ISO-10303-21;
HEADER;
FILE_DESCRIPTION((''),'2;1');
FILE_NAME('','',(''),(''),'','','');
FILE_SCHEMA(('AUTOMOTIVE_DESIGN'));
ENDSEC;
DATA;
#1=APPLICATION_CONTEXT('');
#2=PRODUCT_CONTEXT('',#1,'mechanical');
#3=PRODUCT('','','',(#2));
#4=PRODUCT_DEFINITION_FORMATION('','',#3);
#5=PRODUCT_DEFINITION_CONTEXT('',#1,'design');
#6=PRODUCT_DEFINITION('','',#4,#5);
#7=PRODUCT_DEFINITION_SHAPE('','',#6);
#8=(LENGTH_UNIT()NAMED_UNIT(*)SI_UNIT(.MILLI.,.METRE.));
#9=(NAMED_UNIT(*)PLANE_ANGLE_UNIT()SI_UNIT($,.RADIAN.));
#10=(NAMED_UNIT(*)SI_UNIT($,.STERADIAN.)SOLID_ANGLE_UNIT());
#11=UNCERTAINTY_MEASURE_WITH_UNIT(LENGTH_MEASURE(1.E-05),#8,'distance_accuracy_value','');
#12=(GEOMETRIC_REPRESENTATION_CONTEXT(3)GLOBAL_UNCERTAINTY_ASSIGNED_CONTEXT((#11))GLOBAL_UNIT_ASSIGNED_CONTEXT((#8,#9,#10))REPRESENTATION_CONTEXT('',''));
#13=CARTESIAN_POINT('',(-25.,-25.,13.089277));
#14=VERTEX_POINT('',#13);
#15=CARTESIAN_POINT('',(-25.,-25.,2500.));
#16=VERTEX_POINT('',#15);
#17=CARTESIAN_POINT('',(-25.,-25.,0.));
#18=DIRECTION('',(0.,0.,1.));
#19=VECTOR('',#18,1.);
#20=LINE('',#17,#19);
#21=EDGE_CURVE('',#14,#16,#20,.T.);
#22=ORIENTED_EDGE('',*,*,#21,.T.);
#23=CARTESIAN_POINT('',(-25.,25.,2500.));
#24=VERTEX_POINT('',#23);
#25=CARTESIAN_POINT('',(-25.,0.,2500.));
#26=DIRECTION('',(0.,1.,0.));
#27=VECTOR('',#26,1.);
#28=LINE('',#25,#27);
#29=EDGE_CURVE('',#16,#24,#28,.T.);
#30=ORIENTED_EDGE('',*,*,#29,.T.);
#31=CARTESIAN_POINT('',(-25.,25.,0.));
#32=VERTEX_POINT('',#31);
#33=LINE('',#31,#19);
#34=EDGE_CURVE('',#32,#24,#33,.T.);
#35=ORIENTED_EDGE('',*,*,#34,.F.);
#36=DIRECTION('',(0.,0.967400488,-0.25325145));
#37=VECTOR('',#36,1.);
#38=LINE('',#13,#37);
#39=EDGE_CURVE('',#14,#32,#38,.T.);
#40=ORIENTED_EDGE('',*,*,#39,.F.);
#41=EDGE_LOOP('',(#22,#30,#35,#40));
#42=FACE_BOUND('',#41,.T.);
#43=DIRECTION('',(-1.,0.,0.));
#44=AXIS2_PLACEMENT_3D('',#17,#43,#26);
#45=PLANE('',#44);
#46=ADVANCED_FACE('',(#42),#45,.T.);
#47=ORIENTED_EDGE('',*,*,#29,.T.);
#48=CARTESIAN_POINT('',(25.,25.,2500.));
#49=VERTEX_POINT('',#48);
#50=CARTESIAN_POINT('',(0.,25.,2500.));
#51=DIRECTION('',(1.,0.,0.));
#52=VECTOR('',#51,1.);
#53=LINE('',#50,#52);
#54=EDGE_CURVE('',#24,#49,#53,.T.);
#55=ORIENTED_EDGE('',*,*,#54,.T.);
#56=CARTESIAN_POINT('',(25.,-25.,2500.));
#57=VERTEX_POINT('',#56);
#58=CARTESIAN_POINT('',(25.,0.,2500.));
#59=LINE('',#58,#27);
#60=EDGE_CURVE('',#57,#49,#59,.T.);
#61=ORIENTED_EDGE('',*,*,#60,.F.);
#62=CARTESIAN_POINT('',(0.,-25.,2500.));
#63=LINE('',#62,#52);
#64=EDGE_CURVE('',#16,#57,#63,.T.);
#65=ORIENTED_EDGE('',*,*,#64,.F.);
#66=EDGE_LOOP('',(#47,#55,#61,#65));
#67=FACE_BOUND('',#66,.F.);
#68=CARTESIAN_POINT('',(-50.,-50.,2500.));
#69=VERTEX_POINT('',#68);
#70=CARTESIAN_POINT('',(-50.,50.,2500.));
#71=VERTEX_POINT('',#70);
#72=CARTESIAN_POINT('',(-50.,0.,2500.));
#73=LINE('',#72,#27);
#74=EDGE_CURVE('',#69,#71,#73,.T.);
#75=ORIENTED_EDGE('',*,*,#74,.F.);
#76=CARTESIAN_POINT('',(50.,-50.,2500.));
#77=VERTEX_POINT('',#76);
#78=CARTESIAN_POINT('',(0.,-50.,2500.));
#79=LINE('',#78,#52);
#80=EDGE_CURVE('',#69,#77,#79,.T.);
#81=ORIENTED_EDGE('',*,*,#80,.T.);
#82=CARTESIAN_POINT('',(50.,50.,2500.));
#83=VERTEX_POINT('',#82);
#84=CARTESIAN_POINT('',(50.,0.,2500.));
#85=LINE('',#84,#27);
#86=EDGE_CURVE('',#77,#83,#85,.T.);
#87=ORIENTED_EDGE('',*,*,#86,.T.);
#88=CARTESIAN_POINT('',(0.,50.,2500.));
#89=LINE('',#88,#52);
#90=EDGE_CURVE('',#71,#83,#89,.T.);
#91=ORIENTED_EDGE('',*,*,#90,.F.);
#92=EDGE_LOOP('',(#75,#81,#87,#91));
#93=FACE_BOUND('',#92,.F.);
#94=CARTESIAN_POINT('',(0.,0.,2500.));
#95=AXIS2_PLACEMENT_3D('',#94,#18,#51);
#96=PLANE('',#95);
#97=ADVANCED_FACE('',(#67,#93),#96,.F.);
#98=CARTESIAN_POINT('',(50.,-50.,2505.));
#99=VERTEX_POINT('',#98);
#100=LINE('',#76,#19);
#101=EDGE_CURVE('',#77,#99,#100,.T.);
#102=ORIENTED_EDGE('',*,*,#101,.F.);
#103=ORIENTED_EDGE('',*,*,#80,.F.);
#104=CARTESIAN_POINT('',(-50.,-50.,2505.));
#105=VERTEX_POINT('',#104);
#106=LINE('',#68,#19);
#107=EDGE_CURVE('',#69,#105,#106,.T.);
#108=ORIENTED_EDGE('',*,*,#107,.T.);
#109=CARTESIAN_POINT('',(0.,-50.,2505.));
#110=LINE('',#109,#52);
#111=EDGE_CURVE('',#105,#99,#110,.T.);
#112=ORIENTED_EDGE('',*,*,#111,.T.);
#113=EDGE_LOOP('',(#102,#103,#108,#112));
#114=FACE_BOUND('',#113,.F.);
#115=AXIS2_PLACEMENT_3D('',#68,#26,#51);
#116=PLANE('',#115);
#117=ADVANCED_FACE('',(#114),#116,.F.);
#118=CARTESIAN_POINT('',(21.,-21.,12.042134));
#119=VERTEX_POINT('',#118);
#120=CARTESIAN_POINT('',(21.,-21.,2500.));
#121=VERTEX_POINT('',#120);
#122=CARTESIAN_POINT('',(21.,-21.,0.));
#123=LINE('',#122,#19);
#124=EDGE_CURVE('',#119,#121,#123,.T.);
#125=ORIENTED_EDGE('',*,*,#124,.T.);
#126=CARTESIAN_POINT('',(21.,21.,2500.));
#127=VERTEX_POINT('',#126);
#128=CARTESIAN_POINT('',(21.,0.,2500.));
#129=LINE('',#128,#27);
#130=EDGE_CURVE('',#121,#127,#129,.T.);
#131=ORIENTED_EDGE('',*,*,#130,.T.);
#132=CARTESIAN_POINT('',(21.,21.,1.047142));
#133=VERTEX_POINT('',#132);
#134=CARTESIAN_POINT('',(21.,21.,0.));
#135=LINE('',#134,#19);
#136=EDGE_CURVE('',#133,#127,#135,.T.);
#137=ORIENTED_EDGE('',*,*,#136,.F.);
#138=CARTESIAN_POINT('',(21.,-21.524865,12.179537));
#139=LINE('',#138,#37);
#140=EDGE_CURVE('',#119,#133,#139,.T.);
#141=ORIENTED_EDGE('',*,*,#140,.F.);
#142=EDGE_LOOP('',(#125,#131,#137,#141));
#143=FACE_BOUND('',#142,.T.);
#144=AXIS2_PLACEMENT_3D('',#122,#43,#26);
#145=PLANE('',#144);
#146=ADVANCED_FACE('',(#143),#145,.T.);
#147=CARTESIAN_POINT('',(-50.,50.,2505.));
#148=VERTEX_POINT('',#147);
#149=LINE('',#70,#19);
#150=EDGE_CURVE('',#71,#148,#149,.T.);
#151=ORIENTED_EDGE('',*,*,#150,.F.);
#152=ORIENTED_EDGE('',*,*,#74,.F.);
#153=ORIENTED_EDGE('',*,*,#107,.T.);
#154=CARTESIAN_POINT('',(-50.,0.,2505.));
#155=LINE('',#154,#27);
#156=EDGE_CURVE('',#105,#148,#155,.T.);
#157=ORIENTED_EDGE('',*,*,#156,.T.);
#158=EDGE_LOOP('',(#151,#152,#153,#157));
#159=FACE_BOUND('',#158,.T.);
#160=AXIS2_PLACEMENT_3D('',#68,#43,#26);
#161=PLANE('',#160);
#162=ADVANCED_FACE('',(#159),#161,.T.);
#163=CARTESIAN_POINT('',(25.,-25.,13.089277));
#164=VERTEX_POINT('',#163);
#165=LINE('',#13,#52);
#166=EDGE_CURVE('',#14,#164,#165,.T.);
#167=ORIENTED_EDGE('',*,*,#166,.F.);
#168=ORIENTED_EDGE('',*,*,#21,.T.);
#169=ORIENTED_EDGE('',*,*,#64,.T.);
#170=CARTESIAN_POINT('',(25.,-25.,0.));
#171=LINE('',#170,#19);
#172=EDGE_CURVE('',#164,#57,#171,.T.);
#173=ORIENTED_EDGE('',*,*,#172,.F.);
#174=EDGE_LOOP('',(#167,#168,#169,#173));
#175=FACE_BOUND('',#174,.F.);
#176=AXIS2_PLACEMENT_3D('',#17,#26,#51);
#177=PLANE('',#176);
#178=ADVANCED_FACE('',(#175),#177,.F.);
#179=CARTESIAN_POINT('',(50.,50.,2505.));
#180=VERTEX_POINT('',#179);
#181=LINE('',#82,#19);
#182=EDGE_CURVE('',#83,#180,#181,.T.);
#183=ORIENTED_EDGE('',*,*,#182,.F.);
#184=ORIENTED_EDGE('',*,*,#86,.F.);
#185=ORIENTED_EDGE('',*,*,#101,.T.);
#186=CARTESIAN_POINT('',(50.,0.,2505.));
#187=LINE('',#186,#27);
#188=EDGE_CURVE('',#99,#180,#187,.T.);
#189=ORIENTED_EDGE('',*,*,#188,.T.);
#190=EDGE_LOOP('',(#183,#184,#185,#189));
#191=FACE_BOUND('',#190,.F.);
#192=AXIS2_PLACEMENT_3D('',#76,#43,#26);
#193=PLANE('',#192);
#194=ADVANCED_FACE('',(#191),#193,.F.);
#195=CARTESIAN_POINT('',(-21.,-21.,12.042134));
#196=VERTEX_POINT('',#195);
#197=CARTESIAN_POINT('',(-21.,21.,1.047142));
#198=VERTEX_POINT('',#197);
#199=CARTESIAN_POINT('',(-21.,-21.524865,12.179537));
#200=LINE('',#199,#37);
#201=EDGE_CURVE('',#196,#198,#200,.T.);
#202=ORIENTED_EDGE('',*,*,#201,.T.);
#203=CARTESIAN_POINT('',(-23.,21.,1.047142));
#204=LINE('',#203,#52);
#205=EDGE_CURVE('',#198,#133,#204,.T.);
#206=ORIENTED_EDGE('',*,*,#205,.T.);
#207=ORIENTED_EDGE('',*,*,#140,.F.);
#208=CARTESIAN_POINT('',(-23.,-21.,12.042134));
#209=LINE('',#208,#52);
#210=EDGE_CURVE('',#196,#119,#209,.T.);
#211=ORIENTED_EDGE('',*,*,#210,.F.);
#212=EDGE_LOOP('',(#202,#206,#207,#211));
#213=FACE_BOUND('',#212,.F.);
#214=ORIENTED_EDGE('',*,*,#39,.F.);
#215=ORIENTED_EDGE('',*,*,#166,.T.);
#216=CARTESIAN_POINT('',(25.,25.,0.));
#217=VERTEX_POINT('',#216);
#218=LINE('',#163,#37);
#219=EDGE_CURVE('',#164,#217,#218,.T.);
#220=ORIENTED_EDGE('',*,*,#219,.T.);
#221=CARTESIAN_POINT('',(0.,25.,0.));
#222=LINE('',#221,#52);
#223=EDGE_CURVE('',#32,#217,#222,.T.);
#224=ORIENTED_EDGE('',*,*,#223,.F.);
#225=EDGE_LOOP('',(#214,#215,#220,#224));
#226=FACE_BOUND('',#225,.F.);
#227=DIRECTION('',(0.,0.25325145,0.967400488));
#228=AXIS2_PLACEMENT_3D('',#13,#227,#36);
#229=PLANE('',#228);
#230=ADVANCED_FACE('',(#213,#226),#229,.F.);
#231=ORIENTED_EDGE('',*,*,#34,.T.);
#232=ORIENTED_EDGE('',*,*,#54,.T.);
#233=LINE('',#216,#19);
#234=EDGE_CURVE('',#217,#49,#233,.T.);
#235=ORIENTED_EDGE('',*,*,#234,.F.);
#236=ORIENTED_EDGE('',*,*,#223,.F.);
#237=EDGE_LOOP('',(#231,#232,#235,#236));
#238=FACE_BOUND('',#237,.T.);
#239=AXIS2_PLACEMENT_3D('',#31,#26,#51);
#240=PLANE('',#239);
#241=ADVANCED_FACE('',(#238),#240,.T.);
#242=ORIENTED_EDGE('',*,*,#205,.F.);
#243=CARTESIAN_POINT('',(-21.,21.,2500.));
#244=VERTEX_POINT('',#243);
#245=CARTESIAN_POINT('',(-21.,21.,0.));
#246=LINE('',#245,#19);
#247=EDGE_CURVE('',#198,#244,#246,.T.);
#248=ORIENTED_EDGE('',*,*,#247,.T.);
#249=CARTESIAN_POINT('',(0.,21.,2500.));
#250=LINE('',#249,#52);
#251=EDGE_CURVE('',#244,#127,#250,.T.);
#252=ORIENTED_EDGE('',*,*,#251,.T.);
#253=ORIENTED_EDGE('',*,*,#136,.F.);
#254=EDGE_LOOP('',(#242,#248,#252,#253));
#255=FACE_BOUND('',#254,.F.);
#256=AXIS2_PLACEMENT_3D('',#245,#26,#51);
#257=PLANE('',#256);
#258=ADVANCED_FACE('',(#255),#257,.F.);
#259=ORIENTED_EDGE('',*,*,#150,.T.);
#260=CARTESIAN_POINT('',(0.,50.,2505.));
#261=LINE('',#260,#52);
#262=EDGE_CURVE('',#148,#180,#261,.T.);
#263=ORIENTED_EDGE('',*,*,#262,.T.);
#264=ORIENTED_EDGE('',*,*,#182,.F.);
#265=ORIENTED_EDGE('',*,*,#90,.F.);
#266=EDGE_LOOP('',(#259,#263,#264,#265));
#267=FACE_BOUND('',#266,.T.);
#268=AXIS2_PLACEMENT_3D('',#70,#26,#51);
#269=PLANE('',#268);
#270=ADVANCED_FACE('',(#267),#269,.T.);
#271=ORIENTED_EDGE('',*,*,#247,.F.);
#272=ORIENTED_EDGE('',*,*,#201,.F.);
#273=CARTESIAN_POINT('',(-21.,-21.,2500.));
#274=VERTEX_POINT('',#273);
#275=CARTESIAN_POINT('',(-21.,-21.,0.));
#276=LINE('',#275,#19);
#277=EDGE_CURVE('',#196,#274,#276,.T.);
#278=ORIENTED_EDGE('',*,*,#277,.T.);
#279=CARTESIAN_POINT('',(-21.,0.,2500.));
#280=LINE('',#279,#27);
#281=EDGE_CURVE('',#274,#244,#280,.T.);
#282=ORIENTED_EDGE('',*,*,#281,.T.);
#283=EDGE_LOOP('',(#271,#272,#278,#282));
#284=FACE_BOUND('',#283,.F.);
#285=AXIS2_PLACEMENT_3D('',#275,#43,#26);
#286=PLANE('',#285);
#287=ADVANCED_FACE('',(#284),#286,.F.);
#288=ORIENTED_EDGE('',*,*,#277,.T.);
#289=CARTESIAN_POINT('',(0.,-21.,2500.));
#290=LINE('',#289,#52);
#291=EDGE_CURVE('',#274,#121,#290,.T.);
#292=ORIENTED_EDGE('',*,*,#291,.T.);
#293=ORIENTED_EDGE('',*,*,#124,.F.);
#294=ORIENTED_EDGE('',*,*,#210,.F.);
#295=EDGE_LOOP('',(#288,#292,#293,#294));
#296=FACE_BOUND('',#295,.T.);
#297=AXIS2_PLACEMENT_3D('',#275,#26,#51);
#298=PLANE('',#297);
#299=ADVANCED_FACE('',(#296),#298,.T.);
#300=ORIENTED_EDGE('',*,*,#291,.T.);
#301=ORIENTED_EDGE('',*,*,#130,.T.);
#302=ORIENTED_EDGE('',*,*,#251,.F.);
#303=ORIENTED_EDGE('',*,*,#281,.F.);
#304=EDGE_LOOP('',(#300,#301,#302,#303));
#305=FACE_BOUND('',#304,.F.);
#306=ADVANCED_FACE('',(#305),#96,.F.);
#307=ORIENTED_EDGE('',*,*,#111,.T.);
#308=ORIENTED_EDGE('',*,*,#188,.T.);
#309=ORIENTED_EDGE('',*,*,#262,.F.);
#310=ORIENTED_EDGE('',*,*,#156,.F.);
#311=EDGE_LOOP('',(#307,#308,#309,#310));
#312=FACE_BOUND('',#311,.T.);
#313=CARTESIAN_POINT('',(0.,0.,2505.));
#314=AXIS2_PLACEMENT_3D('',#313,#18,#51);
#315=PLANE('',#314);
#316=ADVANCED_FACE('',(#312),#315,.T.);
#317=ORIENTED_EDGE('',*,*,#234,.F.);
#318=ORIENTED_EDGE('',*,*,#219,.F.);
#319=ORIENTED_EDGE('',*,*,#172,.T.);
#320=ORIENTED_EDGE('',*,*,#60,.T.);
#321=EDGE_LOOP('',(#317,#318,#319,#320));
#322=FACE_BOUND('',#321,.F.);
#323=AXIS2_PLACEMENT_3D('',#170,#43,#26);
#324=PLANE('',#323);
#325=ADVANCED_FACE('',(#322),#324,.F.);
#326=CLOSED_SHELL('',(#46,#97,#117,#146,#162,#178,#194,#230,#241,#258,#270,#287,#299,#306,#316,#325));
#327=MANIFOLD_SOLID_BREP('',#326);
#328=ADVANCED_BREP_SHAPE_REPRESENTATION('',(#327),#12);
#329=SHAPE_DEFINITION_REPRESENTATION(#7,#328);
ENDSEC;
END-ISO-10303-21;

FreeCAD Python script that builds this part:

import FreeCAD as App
import Part
import Sketcher
from FreeCAD import Vector
Q = App.Units.Quantity

doc = App.newDocument("Part")
params = doc.addObject("Spreadsheet::Sheet", "Params")
for row, (alias, value) in enumerate([
    ("sketch1_width", "50 mm"),
    ("sketch1_width2", "42 mm"),
    ("pad1_length", "2500 mm"),
    ("sketch2_width", "100 mm"),
    ("pad2_length", "5 mm"),
    ("sketch3_width", "50 mm"),
    ("pocket1_length", "50 mm"),
], start=1):
    params.set(f"A{row}", alias)
    params.set(f"B{row}", "=" + value)
    params.setAlias(f"B{row}", alias)

body = doc.addObject("PartDesign::Body", "Body")

# Sketch on XY plane
sketch1 = doc.addObject("Sketcher::SketchObject", "Sketch")
body.addObject(sketch1)
sketch1.AttachmentSupport = (doc.XY_Plane, [""])
sketch1.MapMode = "FlatFace"
sketch1.addGeometry([
    Part.LineSegment(Vector(-25, 25, 0), Vector(-25, -25, 0)),  # 0
    Part.LineSegment(Vector(-25, -25, 0), Vector(25, -25, 0)),  # 1
    Part.LineSegment(Vector(25, -25, 0), Vector(25, 25, 0)),  # 2
    Part.LineSegment(Vector(25, 25, 0), Vector(-25, 25, 0)),  # 3
    Part.LineSegment(Vector(21, -21, 0), Vector(-21, -21, 0)),  # 4
    Part.LineSegment(Vector(-21, -21, 0), Vector(-21, 21, 0)),  # 5
    Part.LineSegment(Vector(-21, 21, 0), Vector(21, 21, 0)),  # 6
    Part.LineSegment(Vector(21, 21, 0), Vector(21, -21, 0)),  # 7
], False)
sketch1.addConstraint([
    Sketcher.Constraint("Coincident", 0, 2, 1, 1),
    Sketcher.Constraint("Coincident", 1, 2, 2, 1),
    Sketcher.Constraint("Coincident", 2, 2, 3, 1),
    Sketcher.Constraint("Coincident", 3, 2, 0, 1),
    Sketcher.Constraint("Coincident", 4, 2, 5, 1),
    Sketcher.Constraint("Coincident", 5, 2, 6, 1),
    Sketcher.Constraint("Coincident", 6, 2, 7, 1),
    Sketcher.Constraint("Coincident", 7, 2, 4, 1),
    Sketcher.Constraint("Vertical", 0),
    Sketcher.Constraint("Horizontal", 1),
    Sketcher.Constraint("Vertical", 2),
    Sketcher.Constraint("Horizontal", 3),
    Sketcher.Constraint("Horizontal", 4),
    Sketcher.Constraint("Vertical", 5),
    Sketcher.Constraint("Horizontal", 6),
    Sketcher.Constraint("Vertical", 7),
    Sketcher.Constraint("Symmetric", 0, 2, 2, 2, -1, 1),
    Sketcher.Constraint("Symmetric", 4, 2, 6, 2, -1, 1),
    Sketcher.Constraint("Equal", 3, 0),
    Sketcher.Constraint("Equal", 6, 5),
    Sketcher.Constraint("DistanceX", 1, 1, 1, 2, Q("50 mm")),
    Sketcher.Constraint("DistanceX", 4, 2, 4, 1, Q("42 mm")),
])
sketch1.setExpression("Constraints[20]", "Params.sketch1_width")
sketch1.setExpression("Constraints[21]", "Params.sketch1_width2")
pad1 = doc.addObject("PartDesign::Pad", "Pad")
body.addObject(pad1)
pad1.Profile = sketch1
pad1.setExpression("Length", "Params.pad1_length")

# Sketch on XY plane
sketch2 = doc.addObject("Sketcher::SketchObject", "Sketch001")
body.addObject(sketch2)
sketch2.AttachmentSupport = (doc.XY_Plane, [""])
sketch2.MapMode = "FlatFace"
sketch2.AttachmentOffset = App.Placement(Vector(0, 0, 2500), App.Rotation())
sketch2.addGeometry([
    Part.LineSegment(Vector(-50, 50, 0), Vector(-50, -50, 0)),
    Part.LineSegment(Vector(-50, -50, 0), Vector(50, -50, 0)),
    Part.LineSegment(Vector(50, -50, 0), Vector(50, 50, 0)),
    Part.LineSegment(Vector(50, 50, 0), Vector(-50, 50, 0)),
], False)
sketch2.addConstraint([
    Sketcher.Constraint("Coincident", 0, 2, 1, 1),
    Sketcher.Constraint("Coincident", 1, 2, 2, 1),
    Sketcher.Constraint("Coincident", 2, 2, 3, 1),
    Sketcher.Constraint("Coincident", 3, 2, 0, 1),
    Sketcher.Constraint("Vertical", 0),
    Sketcher.Constraint("Horizontal", 1),
    Sketcher.Constraint("Vertical", 2),
    Sketcher.Constraint("Horizontal", 3),
    Sketcher.Constraint("Symmetric", 0, 2, 2, 2, -1, 1),
    Sketcher.Constraint("Equal", 3, 0),
    Sketcher.Constraint("DistanceX", 1, 1, 1, 2, Q("100 mm")),
])
sketch2.setExpression("Constraints[10]", "Params.sketch2_width")
pad2 = doc.addObject("PartDesign::Pad", "Pad001")
body.addObject(pad2)
pad2.Profile = sketch2
pad2.setExpression("Length", "Params.pad2_length")

# Sketch on YZ plane
sketch3 = doc.addObject("Sketcher::SketchObject", "Sketch002")
body.addObject(sketch3)
sketch3.AttachmentSupport = (doc.YZ_Plane, [""])
sketch3.MapMode = "FlatFace"
sketch3.AttachmentOffset = App.Placement(Vector(0, 0, -25), App.Rotation())
sketch3.addGeometry([
    Part.LineSegment(Vector(-25, 13, 0), Vector(25, 0, 0)),
    Part.LineSegment(Vector(25, 0, 0), Vector(-25, 0, 0)),
    Part.LineSegment(Vector(-25, 0, 0), Vector(-25, 13, 0)),
], False)
sketch3.addConstraint([
    Sketcher.Constraint("Coincident", 0, 2, 1, 1),
    Sketcher.Constraint("Coincident", 1, 2, 2, 1),
    Sketcher.Constraint("Coincident", 2, 2, 0, 1),
    Sketcher.Constraint("Horizontal", 1),
    Sketcher.Constraint("Vertical", 2),
    Sketcher.Constraint("Symmetric", 0, 2, 1, 2, -1, 1),
    Sketcher.Constraint("DistanceX", 1, 2, 1, 1, Q("50 mm")),
    Sketcher.Constraint("Angle", 0, Q("-14.67 deg")),
])
sketch3.setExpression("Constraints[6]", "Params.sketch3_width")
pocket1 = doc.addObject("PartDesign::Pocket", "Pocket")
body.addObject(pocket1)
pocket1.Profile = sketch3
pocket1.setExpression("Length", "Params.pocket1_length")
pocket1.Reversed = True

doc.recompute()
